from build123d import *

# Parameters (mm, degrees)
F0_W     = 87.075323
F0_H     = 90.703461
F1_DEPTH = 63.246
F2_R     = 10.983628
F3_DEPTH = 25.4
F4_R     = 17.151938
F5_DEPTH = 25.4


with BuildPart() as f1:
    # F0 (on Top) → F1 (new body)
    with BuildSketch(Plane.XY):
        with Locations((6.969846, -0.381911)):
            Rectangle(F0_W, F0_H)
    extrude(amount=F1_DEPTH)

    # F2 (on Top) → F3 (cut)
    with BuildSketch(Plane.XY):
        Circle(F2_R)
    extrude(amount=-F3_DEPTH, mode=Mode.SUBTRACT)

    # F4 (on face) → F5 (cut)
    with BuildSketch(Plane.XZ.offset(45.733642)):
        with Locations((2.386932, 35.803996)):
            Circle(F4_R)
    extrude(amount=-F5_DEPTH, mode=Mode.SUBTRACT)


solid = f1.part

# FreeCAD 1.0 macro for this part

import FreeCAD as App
import Part
import Sketcher

V = App.Vector
Q = App.Units.Quantity


def add_polygon(sketch, points):
    """Adds a closed chain of lines whose ends are joined by coincident constraints."""
    first, n = sketch.GeometryCount, len(points)
    for a, b in zip(points, points[1:] + points[:1]):
        sketch.addGeometry(Part.LineSegment(App.Vector(*a, 0), App.Vector(*b, 0)), False)
    for i in range(n):
        sketch.addConstraint(Sketcher.Constraint("Coincident", first + i, 2, first + (i + 1) % n, 1))

doc = App.newDocument("Part")
body = doc.addObject("PartDesign::Body", "Body")

sketch1 = doc.addObject("Sketcher::SketchObject", "Sketch")
body.addObject(sketch1)
sketch1.AttachmentSupport = (doc.XY_Plane, [""])
sketch1.MapMode = "FlatFace"
add_polygon(sketch1, [(-37, 45), (-37, -46), (51, -46), (51, 45)])
sketch1.addConstraint(Sketcher.Constraint("Vertical", 0))
sketch1.addConstraint(Sketcher.Constraint("Horizontal", 1))
sketch1.addConstraint(Sketcher.Constraint("Vertical", 2))
sketch1.addConstraint(Sketcher.Constraint("Horizontal", 3))
sketch1.addConstraint(Sketcher.Constraint("DistanceY", 0, 2, 0, 1, 90.703461))
sketch1.addConstraint(Sketcher.Constraint("DistanceX", 1, 1, 1, 2, 87.075323))
sketch1.addConstraint(Sketcher.Constraint("DistanceY", 0, 2, -1, 1, 45.733641))
sketch1.addConstraint(Sketcher.Constraint("DistanceX", 0, 2, -1, 1, 36.567816))
pad1 = doc.addObject("PartDesign::Pad", "Pad")
body.addObject(pad1)
pad1.Profile = sketch1
pad1.Length = Q("2.49 in")

sketch2 = doc.addObject("Sketcher::SketchObject", "Sketch001")
body.addObject(sketch2)
sketch2.AttachmentSupport = (doc.XY_Plane, [""])
sketch2.MapMode = "FlatFace"
sketch2.addGeometry(Part.Circle(V(0, 0, 0), V(0, 0, 1), 11), False)
sketch2.addConstraint(Sketcher.Constraint("Coincident", 0, 3, -1, 1))
sketch2.addConstraint(Sketcher.Constraint("Diameter", 0, 21.967256))
pocket1 = doc.addObject("PartDesign::Pocket", "Pocket")
body.addObject(pocket1)
pocket1.Profile = sketch2
pocket1.Length = Q("1 in")

sketch3 = doc.addObject("Sketcher::SketchObject", "Sketch002")
body.addObject(sketch3)
sketch3.AttachmentSupport = (doc.XZ_Plane, [""])
sketch3.MapMode = "FlatFace"
sketch3.AttachmentOffset = App.Placement(V(0, 0, 45.733642), App.Rotation())
sketch3.addGeometry(Part.Circle(V(2, 36, 0), V(0, 0, 1), 17), False)
sketch3.addConstraint(Sketcher.Constraint("Diameter", 0, 34.303876))
sketch3.addConstraint(Sketcher.Constraint("DistanceX", -1, 1, 0, 3, 2.386932))
sketch3.addConstraint(Sketcher.Constraint("DistanceY", -1, 1, 0, 3, 35.803996))
pocket2 = doc.addObject("PartDesign::Pocket", "Pocket001")
body.addObject(pocket2)
pocket2.Profile = sketch3
pocket2.Length = Q("1 in")

doc.recompute()
